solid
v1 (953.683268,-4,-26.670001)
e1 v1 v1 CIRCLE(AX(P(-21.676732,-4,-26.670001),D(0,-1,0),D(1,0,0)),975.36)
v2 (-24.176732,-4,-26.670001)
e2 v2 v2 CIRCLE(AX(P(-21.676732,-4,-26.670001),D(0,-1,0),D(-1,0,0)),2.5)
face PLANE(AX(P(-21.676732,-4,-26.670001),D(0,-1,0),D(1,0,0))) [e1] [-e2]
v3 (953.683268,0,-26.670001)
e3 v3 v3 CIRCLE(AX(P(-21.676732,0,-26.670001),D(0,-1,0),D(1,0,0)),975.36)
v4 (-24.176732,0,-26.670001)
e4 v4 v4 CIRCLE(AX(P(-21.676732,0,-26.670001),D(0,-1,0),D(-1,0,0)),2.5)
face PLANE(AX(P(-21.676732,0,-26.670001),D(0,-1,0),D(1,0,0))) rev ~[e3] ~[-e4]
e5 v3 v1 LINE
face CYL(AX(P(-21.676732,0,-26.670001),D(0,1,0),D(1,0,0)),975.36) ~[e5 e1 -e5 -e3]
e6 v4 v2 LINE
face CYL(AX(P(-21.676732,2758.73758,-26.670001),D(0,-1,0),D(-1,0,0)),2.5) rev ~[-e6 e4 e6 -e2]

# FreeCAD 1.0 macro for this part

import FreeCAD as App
import Part
import Sketcher

V = App.Vector
Q = App.Units.Quantity

doc = App.newDocument("Part")
body = doc.addObject("PartDesign::Body", "Body")

sketch1 = body.newObject("Sketcher::SketchObject", "Sketch")
sketch1.AttachmentSupport = (doc.getObject("XZ_Plane"), [""])
sketch1.MapMode = "FlatFace"
sketch1.addGeometry(Part.Circle(V(-22, -27, 0), V(0, 0, 1), 975), False)
sketch1.addConstraint(Sketcher.Constraint("Diameter", 0, Q("1950.72 mm")))
sketch1.addConstraint(Sketcher.Constraint("DistanceY", 0, 3, -1, 1, Q("26.670001 mm")))
sketch1.addConstraint(Sketcher.Constraint("DistanceX", 0, 3, -1, 1, Q("21.676732 mm")))
pad1 = body.newObject("PartDesign::Pad", "Pad")
pad1.Profile = sketch1
pad1.Length = 4

sketch2 = body.newObject("Sketcher::SketchObject", "Sketch001")
sketch2.AttachmentSupport = (doc.getObject("XZ_Plane"), [""])
sketch2.MapMode = "FlatFace"
sketch2.addGeometry(Part.Circle(V(-21.7, -26.7, 0), V(0, 0, 1), 2.5), False)
sketch2.addConstraint(Sketcher.Constraint("Diameter", 0, Q("5 mm")))
sketch2.addConstraint(Sketcher.Constraint("DistanceY", 0, 3, -1, 1, Q("26.670001 mm")))
sketch2.addConstraint(Sketcher.Constraint("DistanceX", 0, 3, -1, 1, Q("21.676732 mm")))
doc.recompute()
hole = body.newObject("PartDesign::Hole", "Hole")
hole.Profile = sketch2
hole.ThreadType = "None"
hole.Diameter = 5
hole.DepthType = "ThroughAll"
hole.Reversed = True

doc.recompute()
